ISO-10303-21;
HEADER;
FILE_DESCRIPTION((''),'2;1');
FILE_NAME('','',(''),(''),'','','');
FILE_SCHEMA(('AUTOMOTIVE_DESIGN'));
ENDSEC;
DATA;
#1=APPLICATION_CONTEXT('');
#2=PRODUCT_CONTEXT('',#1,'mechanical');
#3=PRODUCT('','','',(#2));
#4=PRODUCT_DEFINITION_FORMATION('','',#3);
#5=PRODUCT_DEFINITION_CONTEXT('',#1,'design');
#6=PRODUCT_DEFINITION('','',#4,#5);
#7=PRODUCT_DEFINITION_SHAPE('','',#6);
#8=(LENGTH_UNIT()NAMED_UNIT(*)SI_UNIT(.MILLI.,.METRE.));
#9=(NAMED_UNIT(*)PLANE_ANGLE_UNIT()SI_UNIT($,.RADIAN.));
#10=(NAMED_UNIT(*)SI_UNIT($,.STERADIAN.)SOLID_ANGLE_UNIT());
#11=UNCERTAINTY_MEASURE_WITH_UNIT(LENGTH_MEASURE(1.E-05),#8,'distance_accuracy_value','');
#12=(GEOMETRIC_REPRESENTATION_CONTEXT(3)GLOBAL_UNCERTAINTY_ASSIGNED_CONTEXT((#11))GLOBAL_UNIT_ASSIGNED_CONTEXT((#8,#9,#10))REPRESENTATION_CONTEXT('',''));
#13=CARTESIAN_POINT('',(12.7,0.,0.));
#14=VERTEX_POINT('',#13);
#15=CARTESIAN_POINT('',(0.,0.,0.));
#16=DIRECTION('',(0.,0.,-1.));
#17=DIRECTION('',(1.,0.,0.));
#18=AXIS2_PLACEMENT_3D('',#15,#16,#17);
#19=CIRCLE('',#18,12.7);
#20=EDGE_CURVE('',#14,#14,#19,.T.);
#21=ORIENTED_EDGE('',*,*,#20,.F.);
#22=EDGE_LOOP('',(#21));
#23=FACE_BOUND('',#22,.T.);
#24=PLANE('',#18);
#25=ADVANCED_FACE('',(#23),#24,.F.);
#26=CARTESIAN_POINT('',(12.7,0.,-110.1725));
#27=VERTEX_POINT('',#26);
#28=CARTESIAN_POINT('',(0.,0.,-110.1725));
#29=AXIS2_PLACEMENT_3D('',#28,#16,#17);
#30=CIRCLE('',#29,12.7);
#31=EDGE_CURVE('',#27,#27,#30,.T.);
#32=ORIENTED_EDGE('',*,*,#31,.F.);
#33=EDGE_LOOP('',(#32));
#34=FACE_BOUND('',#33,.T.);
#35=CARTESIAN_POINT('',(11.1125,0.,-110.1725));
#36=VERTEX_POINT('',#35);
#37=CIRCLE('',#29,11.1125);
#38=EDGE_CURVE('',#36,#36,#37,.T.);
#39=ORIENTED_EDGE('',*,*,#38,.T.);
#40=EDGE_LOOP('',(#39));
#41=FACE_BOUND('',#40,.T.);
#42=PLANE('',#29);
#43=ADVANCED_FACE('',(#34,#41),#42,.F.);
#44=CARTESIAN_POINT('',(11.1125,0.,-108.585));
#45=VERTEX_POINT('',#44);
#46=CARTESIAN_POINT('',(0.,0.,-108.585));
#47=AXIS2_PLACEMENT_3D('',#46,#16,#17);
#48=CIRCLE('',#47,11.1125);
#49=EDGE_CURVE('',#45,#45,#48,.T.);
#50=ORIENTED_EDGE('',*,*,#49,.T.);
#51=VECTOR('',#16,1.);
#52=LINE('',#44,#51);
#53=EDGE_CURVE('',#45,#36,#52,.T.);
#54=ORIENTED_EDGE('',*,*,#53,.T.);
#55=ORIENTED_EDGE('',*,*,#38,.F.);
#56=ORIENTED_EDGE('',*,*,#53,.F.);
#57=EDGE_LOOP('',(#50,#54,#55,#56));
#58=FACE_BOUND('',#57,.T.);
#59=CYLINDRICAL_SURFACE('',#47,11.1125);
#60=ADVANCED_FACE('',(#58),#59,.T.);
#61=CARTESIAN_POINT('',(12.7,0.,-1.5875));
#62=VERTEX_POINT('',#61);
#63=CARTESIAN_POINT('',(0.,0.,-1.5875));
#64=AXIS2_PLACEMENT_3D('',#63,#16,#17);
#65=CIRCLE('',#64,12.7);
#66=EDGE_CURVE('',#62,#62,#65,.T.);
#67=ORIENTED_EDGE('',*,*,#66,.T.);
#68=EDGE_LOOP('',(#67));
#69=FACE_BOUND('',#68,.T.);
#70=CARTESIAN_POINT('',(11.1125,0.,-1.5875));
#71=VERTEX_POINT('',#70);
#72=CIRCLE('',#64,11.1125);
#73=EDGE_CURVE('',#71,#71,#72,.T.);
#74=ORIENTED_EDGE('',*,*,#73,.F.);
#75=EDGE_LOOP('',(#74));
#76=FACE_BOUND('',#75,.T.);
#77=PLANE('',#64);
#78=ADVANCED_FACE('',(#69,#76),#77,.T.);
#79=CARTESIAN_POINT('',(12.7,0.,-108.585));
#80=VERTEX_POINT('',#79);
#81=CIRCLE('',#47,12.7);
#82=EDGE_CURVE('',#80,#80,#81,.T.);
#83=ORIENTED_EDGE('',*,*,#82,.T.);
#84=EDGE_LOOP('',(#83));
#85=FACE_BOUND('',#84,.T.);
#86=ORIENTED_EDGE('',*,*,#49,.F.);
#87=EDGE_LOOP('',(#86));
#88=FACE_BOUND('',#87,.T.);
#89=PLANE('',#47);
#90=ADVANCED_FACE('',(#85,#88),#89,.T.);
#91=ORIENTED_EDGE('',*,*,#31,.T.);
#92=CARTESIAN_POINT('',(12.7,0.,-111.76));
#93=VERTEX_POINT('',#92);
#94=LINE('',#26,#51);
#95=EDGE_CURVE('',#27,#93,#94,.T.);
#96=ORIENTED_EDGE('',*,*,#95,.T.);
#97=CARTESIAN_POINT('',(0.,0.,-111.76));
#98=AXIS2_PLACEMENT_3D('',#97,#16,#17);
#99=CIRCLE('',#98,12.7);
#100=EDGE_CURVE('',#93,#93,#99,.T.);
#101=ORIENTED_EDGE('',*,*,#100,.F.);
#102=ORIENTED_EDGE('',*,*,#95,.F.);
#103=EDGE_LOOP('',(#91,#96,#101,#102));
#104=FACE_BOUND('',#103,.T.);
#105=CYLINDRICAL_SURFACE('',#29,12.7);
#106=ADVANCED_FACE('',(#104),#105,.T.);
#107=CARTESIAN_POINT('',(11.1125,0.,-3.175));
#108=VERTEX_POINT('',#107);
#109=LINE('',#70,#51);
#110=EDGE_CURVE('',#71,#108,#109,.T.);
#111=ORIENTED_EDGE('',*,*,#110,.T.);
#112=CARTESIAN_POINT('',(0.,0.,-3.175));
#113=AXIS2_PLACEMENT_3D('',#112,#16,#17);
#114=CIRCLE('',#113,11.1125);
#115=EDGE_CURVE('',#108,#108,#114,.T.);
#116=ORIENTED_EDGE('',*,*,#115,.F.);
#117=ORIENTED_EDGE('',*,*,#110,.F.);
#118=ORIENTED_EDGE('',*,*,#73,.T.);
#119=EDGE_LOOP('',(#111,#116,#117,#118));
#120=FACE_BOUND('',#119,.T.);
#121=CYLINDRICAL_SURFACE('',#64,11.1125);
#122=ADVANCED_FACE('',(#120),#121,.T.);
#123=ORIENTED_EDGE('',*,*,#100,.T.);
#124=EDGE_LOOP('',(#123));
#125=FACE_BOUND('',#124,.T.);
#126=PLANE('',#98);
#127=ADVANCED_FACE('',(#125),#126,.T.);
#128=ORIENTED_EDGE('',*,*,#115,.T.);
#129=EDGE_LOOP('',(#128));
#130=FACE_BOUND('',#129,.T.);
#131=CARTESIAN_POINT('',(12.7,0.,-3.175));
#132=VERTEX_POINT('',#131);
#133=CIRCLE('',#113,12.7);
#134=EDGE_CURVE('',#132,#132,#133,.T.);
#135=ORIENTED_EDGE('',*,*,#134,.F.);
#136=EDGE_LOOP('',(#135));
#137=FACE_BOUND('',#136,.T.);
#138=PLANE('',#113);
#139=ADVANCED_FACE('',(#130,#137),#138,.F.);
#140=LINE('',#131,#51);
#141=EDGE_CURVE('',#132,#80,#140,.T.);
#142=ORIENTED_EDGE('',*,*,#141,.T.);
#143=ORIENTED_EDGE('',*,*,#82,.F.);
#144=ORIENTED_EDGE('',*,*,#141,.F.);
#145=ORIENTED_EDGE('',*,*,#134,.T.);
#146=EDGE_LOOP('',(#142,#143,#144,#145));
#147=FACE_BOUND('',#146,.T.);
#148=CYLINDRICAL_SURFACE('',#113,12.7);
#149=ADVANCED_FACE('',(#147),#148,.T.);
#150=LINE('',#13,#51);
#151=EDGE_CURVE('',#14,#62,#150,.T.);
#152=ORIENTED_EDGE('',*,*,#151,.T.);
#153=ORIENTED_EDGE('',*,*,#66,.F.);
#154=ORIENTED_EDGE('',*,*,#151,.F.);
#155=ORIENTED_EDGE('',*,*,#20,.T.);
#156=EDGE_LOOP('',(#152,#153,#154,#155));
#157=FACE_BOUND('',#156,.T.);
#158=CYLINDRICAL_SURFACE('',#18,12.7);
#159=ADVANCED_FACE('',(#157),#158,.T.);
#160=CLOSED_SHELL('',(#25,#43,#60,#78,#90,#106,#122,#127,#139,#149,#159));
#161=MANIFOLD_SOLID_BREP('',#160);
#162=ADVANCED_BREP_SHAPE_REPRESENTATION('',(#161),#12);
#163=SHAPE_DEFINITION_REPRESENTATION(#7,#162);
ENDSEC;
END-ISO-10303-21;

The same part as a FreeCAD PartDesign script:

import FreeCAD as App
import Part
import Sketcher
Q = App.Units.Quantity

doc = App.newDocument("Part")
body = doc.addObject("PartDesign::Body", "Body")

# Sketch on XZ plane
sketch1 = body.newObject("Sketcher::SketchObject", "Sketch")
sketch1.AttachmentSupport = (doc.getObject("XZ_Plane"), [""])
sketch1.MapMode = "FlatFace"
sketch1.addGeometry([
    Part.LineSegment(App.Vector(0, 0, 0), App.Vector(12.7, 0, 0)),  # 0
    Part.LineSegment(App.Vector(12.7, 0, 0), App.Vector(12.7, -1.6, 0)),  # 1
    Part.LineSegment(App.Vector(12.7, -1.6, 0), App.Vector(11.1, -1.6, 0)),  # 2
    Part.LineSegment(App.Vector(11.1, -1.6, 0), App.Vector(11.1, -3.2, 0)),  # 3
    Part.LineSegment(App.Vector(11.1, -3.2, 0), App.Vector(12.7, -3.2, 0)),  # 4
    Part.LineSegment(App.Vector(12.7, -3.2, 0), App.Vector(12.7, -108.6, 0)),  # 5
    Part.LineSegment(App.Vector(12.7, -108.6, 0), App.Vector(11.1, -108.6, 0)),  # 6
    Part.LineSegment(App.Vector(11.1, -108.6, 0), App.Vector(11.1, -110.2, 0)),  # 7
    Part.LineSegment(App.Vector(11.1, -110.2, 0), App.Vector(12.7, -110.2, 0)),  # 8
    Part.LineSegment(App.Vector(12.7, -110.2, 0), App.Vector(12.7, -111.8, 0)),  # 9
    Part.LineSegment(App.Vector(12.7, -111.8, 0), App.Vector(0, -111.8, 0)),  # 10
    Part.LineSegment(App.Vector(0, -111.8, 0), App.Vector(0, 0, 0)),  # 11
], False)
sketch1.addConstraint([
    Sketcher.Constraint("Coincident", 0, 2, 1, 1),
    Sketcher.Constraint("Coincident", 1, 2, 2, 1),
    Sketcher.Constraint("Coincident", 2, 2, 3, 1),
    Sketcher.Constraint("Coincident", 3, 2, 4, 1),
    Sketcher.Constraint("Coincident", 4, 2, 5, 1),
    Sketcher.Constraint("Coincident", 5, 2, 6, 1),
    Sketcher.Constraint("Coincident", 6, 2, 7, 1),
    Sketcher.Constraint("Coincident", 7, 2, 8, 1),
    Sketcher.Constraint("Coincident", 8, 2, 9, 1),
    Sketcher.Constraint("Coincident", 9, 2, 10, 1),
    Sketcher.Constraint("Coincident", 10, 2, 11, 1),
    Sketcher.Constraint("Coincident", 11, 2, 0, 1),
    Sketcher.Constraint("Horizontal", 0),
    Sketcher.Constraint("Vertical", 1),
    Sketcher.Constraint("Horizontal", 2),
    Sketcher.Constraint("Vertical", 3),
    Sketcher.Constraint("Horizontal", 4),
    Sketcher.Constraint("Vertical", 5),
    Sketcher.Constraint("Horizontal", 6),
    Sketcher.Constraint("Vertical", 7),
    Sketcher.Constraint("Horizontal", 8),
    Sketcher.Constraint("Vertical", 9),
    Sketcher.Constraint("Horizontal", 10),
    Sketcher.Constraint("Vertical", 11),
    Sketcher.Constraint("Coincident", 11, 2, -1, 1),
    Sketcher.Constraint("Vertical", 1, 2, 4, 2),
    Sketcher.Constraint("Vertical", 3, 2, 6, 2),
    Sketcher.Constraint("Vertical", 5, 2, 8, 2),
    Sketcher.Constraint("Equal", 8, 1),
    Sketcher.Constraint("Equal", 1, 3),
    Sketcher.Constraint("Equal", 3, 7),
    Sketcher.Constraint("Equal", 7, 9),
    Sketcher.Constraint("DistanceX", 0, 1, 0, 2, Q("0.5 in")),
    Sketcher.Constraint("DistanceY", 11, 1, 11, 2, Q("4.4 in")),
    Sketcher.Constraint("DistanceY", 5, 2, 5, 1, Q("4.15 in")),
])
revolution = body.newObject("PartDesign::Revolution", "Revolution")
revolution.Profile = sketch1
revolution.ReferenceAxis = (sketch1, ["V_Axis"])
revolution.Angle = 360

doc.recompute()
